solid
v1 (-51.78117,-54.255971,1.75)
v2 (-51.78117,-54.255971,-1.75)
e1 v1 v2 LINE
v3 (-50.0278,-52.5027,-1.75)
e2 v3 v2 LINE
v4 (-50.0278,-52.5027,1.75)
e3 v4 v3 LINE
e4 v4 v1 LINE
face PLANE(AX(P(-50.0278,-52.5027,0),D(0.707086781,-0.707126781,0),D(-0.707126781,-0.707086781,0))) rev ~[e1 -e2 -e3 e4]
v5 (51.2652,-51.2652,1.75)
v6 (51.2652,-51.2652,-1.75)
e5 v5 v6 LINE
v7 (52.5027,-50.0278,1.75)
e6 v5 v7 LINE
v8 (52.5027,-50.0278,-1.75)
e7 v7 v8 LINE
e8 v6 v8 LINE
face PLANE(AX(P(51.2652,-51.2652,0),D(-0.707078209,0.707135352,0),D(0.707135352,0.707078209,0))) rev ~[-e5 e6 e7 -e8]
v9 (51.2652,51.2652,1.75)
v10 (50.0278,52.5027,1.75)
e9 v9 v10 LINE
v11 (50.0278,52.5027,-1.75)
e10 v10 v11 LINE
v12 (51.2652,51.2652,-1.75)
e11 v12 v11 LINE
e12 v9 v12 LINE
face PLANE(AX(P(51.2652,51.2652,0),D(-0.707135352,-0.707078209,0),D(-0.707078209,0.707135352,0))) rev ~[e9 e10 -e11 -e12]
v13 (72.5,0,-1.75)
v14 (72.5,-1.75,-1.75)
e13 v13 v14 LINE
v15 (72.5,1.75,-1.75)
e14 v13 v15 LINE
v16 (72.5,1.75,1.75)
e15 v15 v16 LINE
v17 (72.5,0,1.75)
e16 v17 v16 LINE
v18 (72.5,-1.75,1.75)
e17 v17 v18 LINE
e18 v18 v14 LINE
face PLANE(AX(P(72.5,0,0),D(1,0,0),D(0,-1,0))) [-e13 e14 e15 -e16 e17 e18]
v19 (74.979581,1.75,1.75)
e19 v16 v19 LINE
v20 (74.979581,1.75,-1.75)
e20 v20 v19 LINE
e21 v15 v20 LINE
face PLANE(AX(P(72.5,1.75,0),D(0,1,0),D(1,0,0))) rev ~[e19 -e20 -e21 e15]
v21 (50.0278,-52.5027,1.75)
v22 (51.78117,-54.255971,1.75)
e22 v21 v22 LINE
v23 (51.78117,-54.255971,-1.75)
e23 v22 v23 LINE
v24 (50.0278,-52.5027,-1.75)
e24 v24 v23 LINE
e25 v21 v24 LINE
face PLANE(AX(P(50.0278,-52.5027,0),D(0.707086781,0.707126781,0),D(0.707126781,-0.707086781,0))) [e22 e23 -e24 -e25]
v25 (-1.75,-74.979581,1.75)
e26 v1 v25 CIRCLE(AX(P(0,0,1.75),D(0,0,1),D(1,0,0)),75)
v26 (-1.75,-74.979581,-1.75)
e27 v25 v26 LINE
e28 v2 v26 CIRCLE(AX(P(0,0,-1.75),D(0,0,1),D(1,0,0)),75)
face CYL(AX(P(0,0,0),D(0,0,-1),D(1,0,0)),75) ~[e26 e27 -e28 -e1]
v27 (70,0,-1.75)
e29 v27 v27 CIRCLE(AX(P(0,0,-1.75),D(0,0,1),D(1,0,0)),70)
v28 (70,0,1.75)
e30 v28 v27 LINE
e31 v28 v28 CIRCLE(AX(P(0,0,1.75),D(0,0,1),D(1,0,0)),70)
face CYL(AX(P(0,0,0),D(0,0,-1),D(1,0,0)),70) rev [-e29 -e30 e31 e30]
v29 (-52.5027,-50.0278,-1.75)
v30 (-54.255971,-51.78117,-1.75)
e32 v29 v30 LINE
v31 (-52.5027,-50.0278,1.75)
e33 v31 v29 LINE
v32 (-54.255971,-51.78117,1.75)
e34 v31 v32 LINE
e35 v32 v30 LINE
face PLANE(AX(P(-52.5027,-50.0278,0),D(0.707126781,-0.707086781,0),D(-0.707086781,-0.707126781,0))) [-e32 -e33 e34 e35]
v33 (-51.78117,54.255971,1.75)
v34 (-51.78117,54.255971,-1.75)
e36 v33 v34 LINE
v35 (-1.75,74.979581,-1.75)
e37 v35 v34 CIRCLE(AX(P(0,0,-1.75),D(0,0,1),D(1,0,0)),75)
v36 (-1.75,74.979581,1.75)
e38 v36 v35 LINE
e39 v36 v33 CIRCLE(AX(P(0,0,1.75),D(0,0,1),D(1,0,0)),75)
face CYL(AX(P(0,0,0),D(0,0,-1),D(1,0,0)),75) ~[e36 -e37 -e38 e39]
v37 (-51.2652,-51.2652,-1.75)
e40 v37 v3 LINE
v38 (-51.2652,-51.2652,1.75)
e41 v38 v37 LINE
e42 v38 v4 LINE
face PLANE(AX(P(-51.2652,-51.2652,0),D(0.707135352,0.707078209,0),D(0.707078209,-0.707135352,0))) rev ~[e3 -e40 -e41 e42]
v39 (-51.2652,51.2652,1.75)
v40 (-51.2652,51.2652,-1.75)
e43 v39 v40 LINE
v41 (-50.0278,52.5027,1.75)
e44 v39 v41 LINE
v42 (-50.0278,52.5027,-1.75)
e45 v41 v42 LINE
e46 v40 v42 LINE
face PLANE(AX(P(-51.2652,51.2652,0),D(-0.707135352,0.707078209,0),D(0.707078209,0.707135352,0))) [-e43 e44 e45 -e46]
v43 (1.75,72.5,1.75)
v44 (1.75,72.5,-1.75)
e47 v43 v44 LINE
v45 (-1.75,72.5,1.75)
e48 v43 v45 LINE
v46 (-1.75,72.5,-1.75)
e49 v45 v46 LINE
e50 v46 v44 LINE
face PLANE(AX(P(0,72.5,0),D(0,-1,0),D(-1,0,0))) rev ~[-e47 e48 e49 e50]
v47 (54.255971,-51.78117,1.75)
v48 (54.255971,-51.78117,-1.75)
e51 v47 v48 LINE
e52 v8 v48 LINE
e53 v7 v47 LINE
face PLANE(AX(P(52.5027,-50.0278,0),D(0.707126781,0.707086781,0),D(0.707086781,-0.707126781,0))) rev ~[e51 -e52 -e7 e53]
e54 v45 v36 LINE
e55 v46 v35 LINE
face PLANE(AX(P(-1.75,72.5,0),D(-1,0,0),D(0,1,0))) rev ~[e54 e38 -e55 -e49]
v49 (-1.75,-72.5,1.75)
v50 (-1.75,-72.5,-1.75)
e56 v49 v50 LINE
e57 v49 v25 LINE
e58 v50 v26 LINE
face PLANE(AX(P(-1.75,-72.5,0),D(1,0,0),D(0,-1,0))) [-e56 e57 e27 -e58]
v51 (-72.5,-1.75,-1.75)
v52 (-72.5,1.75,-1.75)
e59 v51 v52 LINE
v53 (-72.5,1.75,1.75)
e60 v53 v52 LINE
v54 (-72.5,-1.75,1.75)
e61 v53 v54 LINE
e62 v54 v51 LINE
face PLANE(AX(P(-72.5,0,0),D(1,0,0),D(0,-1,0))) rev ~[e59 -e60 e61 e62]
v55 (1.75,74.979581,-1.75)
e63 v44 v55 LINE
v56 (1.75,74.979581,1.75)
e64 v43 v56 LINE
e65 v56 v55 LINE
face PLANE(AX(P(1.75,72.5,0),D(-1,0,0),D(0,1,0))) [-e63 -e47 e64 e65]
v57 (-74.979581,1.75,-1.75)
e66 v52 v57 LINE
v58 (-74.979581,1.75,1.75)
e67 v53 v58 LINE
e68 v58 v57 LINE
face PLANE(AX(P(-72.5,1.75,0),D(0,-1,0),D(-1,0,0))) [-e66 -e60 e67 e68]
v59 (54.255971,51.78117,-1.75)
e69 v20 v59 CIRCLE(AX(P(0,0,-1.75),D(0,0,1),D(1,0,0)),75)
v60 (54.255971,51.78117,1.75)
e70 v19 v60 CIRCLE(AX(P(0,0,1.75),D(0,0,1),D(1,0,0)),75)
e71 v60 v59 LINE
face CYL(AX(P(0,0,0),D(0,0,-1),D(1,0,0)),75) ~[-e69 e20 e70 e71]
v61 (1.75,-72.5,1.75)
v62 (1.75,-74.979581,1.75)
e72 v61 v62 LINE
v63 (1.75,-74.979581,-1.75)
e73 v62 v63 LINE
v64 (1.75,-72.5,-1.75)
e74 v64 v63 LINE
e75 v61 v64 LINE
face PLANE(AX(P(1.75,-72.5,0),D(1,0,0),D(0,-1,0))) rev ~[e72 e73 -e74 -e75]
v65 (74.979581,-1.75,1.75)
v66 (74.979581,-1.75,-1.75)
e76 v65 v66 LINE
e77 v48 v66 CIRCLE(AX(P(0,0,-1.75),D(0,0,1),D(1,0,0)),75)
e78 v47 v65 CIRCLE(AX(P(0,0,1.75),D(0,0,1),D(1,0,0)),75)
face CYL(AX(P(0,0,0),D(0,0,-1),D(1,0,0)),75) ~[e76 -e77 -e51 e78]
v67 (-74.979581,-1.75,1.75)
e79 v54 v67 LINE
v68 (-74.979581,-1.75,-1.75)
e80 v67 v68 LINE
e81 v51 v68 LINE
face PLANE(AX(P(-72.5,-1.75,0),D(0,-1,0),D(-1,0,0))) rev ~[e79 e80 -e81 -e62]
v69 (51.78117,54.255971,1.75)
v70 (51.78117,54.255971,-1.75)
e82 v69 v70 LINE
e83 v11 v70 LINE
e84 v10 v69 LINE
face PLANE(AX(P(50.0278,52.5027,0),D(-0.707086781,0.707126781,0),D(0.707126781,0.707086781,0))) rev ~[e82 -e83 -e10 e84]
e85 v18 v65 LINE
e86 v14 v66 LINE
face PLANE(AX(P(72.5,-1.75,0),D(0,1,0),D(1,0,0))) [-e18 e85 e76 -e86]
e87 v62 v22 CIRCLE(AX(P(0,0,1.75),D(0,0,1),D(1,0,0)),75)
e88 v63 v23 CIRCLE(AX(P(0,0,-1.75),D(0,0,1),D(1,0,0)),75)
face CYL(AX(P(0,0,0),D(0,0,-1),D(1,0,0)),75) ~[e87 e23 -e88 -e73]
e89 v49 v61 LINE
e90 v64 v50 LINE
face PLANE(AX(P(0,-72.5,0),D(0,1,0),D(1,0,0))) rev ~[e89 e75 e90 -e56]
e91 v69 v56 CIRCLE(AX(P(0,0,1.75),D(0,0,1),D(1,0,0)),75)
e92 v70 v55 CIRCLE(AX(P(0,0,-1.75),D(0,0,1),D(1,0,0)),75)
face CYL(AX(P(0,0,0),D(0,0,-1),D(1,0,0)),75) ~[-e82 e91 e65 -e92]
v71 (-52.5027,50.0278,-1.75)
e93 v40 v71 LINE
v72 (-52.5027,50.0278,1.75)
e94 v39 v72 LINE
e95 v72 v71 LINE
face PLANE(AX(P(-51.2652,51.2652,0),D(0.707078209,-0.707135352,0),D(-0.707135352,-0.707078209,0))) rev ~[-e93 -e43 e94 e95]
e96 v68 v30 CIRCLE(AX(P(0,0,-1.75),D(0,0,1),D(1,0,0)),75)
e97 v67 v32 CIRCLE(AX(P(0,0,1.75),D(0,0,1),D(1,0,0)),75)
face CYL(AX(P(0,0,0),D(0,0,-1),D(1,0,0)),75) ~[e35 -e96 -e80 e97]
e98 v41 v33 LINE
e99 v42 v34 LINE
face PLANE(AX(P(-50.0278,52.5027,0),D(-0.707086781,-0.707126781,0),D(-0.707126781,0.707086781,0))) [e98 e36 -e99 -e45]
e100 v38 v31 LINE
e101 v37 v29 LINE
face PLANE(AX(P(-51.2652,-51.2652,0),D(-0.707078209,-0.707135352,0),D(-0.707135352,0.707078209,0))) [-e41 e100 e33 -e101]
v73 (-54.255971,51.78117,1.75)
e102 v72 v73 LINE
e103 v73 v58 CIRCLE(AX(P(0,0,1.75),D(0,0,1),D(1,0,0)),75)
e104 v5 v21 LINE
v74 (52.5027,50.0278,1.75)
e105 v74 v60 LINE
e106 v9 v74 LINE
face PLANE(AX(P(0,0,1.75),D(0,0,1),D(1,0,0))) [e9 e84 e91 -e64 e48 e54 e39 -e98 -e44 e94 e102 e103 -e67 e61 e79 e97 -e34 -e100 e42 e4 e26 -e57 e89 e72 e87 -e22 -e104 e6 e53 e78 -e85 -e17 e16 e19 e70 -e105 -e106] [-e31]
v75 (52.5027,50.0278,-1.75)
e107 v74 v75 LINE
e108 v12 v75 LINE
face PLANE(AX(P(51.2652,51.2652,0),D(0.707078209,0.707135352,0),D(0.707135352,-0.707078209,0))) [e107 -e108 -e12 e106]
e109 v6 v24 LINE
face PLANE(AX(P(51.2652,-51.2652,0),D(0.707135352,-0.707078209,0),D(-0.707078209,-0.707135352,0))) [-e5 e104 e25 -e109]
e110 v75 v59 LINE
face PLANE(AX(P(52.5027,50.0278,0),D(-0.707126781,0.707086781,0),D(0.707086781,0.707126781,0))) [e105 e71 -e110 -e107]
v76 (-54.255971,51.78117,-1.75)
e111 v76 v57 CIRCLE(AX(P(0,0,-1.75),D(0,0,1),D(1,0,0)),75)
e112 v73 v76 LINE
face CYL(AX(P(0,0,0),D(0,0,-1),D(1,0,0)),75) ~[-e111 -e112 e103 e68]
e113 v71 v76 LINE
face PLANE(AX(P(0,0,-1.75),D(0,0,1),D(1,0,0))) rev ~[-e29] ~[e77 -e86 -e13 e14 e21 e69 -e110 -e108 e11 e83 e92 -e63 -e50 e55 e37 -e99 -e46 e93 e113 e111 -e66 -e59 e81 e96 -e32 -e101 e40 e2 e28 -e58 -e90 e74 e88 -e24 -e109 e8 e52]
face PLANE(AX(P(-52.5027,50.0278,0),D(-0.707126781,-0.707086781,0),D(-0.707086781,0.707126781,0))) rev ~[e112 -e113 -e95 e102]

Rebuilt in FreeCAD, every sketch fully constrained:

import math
import FreeCAD as App
import Part
import Sketcher
from FreeCAD import Vector
Q = App.Units.Quantity

doc = App.newDocument("Part")
params = doc.addObject("Spreadsheet::Sheet", "Params")
for row, (alias, value) in enumerate([
    ("sketch1_diameter", "140 mm"),
    ("sketch1_radius", "75 mm"),
    ("sketch1_height", "1.75 mm"),
    ("sketch1_length", "1.75 mm"),
    ("pad1_length", "3.5 mm"),
], start=1):
    params.set(f"A{row}", alias)
    params.set(f"B{row}", "=" + value)
    params.setAlias(f"B{row}", alias)

body = doc.addObject("PartDesign::Body", "Body")

# Sketch on XY plane
sketch1 = body.newObject("Sketcher::SketchObject", "Sketch")
sketch1.AttachmentSupport = (doc.getObject("XY_Plane"), [""])
sketch1.MapMode = "FlatFace"
sketch1.addGeometry([
    Part.LineSegment(Vector(72.5, -1.8, 0), Vector(72.5, 0, 0)),  # 0
    Part.LineSegment(Vector(72.5, 0, 0), Vector(72.5, 1.8, 0)),  # 1
    Part.LineSegment(Vector(72.5, 1.8, 0), Vector(75, 1.8, 0)),  # 2
    Part.ArcOfCircle(Part.Circle(Vector(0, 0, 0), Vector(0, 0, 1), 75), math.radians(1), math.radians(44)),  # 3
    Part.LineSegment(Vector(54.3, 51.8, 0), Vector(52.5, 50, 0)),  # 4
    Part.LineSegment(Vector(52.5, 50, 0), Vector(51.3, 51.3, 0)),  # 5
    Part.LineSegment(Vector(51.3, 51.3, 0), Vector(50, 52.5, 0)),  # 6
    Part.LineSegment(Vector(50, 52.5, 0), Vector(51.8, 54.3, 0)),  # 7
    Part.ArcOfCircle(Part.Circle(Vector(0, 0, 0), Vector(0, 0, 1), 75), math.radians(46), math.radians(89)),  # 8
    Part.LineSegment(Vector(1.8, 75, 0), Vector(1.8, 72.5, 0)),  # 9
    Part.LineSegment(Vector(1.8, 72.5, 0), Vector(-1.8, 72.5, 0)),  # 10
    Part.LineSegment(Vector(-1.8, 72.5, 0), Vector(-1.8, 75, 0)),  # 11
    Part.ArcOfCircle(Part.Circle(Vector(0, 0, 0), Vector(0, 0, 1), 75), math.radians(91), math.radians(134)),  # 12
    Part.LineSegment(Vector(-51.8, 54.3, 0), Vector(-50, 52.5, 0)),  # 13
    Part.LineSegment(Vector(-50, 52.5, 0), Vector(-51.3, 51.3, 0)),  # 14
    Part.LineSegment(Vector(-51.3, 51.3, 0), Vector(-52.5, 50, 0)),  # 15
    Part.LineSegment(Vector(-52.5, 50, 0), Vector(-54.3, 51.8, 0)),  # 16
    Part.ArcOfCircle(Part.Circle(Vector(0, 0, 0), Vector(0, 0, 1), 75), math.radians(136), math.radians(179)),  # 17
    Part.LineSegment(Vector(-75, 1.8, 0), Vector(-72.5, 1.8, 0)),  # 18
    Part.LineSegment(Vector(-72.5, 1.8, 0), Vector(-72.5, -1.8, 0)),  # 19
    Part.LineSegment(Vector(-72.5, -1.8, 0), Vector(-75, -1.8, 0)),  # 20
    Part.ArcOfCircle(Part.Circle(Vector(0, 0, 0), Vector(0, 0, 1), 75), math.radians(-179), math.radians(-136)),  # 21
    Part.LineSegment(Vector(-54.3, -51.8, 0), Vector(-52.5, -50, 0)),  # 22
    Part.LineSegment(Vector(-52.5, -50, 0), Vector(-51.3, -51.3, 0)),  # 23
    Part.LineSegment(Vector(-51.3, -51.3, 0), Vector(-50, -52.5, 0)),  # 24
    Part.LineSegment(Vector(-50, -52.5, 0), Vector(-51.8, -54.3, 0)),  # 25
    Part.ArcOfCircle(Part.Circle(Vector(0, 0, 0), Vector(0, 0, 1), 75), math.radians(-134), math.radians(-91)),  # 26
    Part.LineSegment(Vector(-1.8, -75, 0), Vector(-1.8, -72.5, 0)),  # 27
    Part.LineSegment(Vector(-1.8, -72.5, 0), Vector(1.8, -72.5, 0)),  # 28
    Part.LineSegment(Vector(1.8, -72.5, 0), Vector(1.8, -75, 0)),  # 29
    Part.ArcOfCircle(Part.Circle(Vector(0, 0, 0), Vector(0, 0, 1), 75), math.radians(-89), math.radians(-46)),  # 30
    Part.LineSegment(Vector(51.8, -54.3, 0), Vector(50, -52.5, 0)),  # 31
    Part.LineSegment(Vector(50, -52.5, 0), Vector(51.3, -51.3, 0)),  # 32
    Part.LineSegment(Vector(51.3, -51.3, 0), Vector(52.5, -50, 0)),  # 33
    Part.LineSegment(Vector(52.5, -50, 0), Vector(54.3, -51.8, 0)),  # 34
    Part.ArcOfCircle(Part.Circle(Vector(0, 0, 0), Vector(0, 0, 1), 75), math.radians(-44), math.radians(-1)),  # 35
    Part.LineSegment(Vector(75, -1.8, 0), Vector(72.5, -1.8, 0)),  # 36
    Part.Circle(Vector(0, 0, 0), Vector(0, 0, 1), 70),  # 37
], False)
sketch1.addConstraint([
    Sketcher.Constraint("Coincident", 0, 2, 1, 1),
    Sketcher.Constraint("Coincident", 1, 2, 2, 1),
    Sketcher.Constraint("Coincident", 2, 2, 3, 1),
    Sketcher.Constraint("Coincident", 3, 2, 4, 1),
    Sketcher.Constraint("Coincident", 4, 2, 5, 1),
    Sketcher.Constraint("Coincident", 5, 2, 6, 1),
    Sketcher.Constraint("Coincident", 6, 2, 7, 1),
    Sketcher.Constraint("Coincident", 7, 2, 8, 1),
    Sketcher.Constraint("Coincident", 8, 2, 9, 1),
    Sketcher.Constraint("Coincident", 9, 2, 10, 1),
    Sketcher.Constraint("Coincident", 10, 2, 11, 1),
    Sketcher.Constraint("Coincident", 11, 2, 12, 1),
    Sketcher.Constraint("Coincident", 12, 2, 13, 1),
    Sketcher.Constraint("Coincident", 13, 2, 14, 1),
    Sketcher.Constraint("Coincident", 14, 2, 15, 1),
    Sketcher.Constraint("Coincident", 15, 2, 16, 1),
    Sketcher.Constraint("Coincident", 16, 2, 17, 1),
    Sketcher.Constraint("Coincident", 17, 2, 18, 1),
    Sketcher.Constraint("Coincident", 18, 2, 19, 1),
    Sketcher.Constraint("Coincident", 19, 2, 20, 1),
    Sketcher.Constraint("Coincident", 20, 2, 21, 1),
    Sketcher.Constraint("Coincident", 21, 2, 22, 1),
    Sketcher.Constraint("Coincident", 22, 2, 23, 1),
    Sketcher.Constraint("Coincident", 23, 2, 24, 1),
    Sketcher.Constraint("Coincident", 24, 2, 25, 1),
    Sketcher.Constraint("Coincident", 25, 2, 26, 1),
    Sketcher.Constraint("Coincident", 26, 2, 27, 1),
    Sketcher.Constraint("Coincident", 27, 2, 28, 1),
    Sketcher.Constraint("Coincident", 28, 2, 29, 1),
    Sketcher.Constraint("Coincident", 29, 2, 30, 1),
    Sketcher.Constraint("Coincident", 30, 2, 31, 1),
    Sketcher.Constraint("Coincident", 31, 2, 32, 1),
    Sketcher.Constraint("Coincident", 32, 2, 33, 1),
    Sketcher.Constraint("Coincident", 33, 2, 34, 1),
    Sketcher.Constraint("Coincident", 34, 2, 35, 1),
    Sketcher.Constraint("Coincident", 35, 2, 36, 1),
    Sketcher.Constraint("Coincident", 36, 2, 0, 1),
    Sketcher.Constraint("Vertical", 0),
    Sketcher.Constraint("Vertical", 1),
    Sketcher.Constraint("Horizontal", 2),
    Sketcher.Constraint("Vertical", 9),
    Sketcher.Constraint("Horizontal", 10),
    Sketcher.Constraint("Vertical", 11),
    Sketcher.Constraint("Horizontal", 18),
    Sketcher.Constraint("Vertical", 19),
    Sketcher.Constraint("Horizontal", 20),
    Sketcher.Constraint("Vertical", 27),
    Sketcher.Constraint("Horizontal", 28),
    Sketcher.Constraint("Vertical", 29),
    Sketcher.Constraint("Horizontal", 36),
    Sketcher.Constraint("Coincident", 3, 3, -1, 1),
    Sketcher.Constraint("Coincident", 8, 3, -1, 1),
    Sketcher.Constraint("Coincident", 12, 3, -1, 1),
    Sketcher.Constraint("Coincident", 17, 3, -1, 1),
    Sketcher.Constraint("Coincident", 21, 3, -1, 1),
    Sketcher.Constraint("Coincident", 26, 3, -1, 1),
    Sketcher.Constraint("Coincident", 30, 3, -1, 1),
    Sketcher.Constraint("Coincident", 35, 3, -1, 1),
    Sketcher.Constraint("Coincident", 37, 3, -1, 1),
    Sketcher.Constraint("Equal", 3, 8),
    Sketcher.Constraint("Equal", 8, 12),
    Sketcher.Constraint("Equal", 12, 17),
    Sketcher.Constraint("Equal", 17, 21),
    Sketcher.Constraint("Equal", 21, 26),
    Sketcher.Constraint("Equal", 26, 30),
    Sketcher.Constraint("Equal", 30, 35),
    Sketcher.Constraint("Symmetric", 1, 2, 19, 2, -1, 1),
    Sketcher.Constraint("Symmetric", 4, 2, 22, 2, -1, 1),
    Sketcher.Constraint("Symmetric", 5, 2, 23, 2, -1, 1),
    Sketcher.Constraint("Symmetric", 6, 2, 24, 2, -1, 1),
    Sketcher.Constraint("Symmetric", 9, 2, 27, 2, -1, 1),
    Sketcher.Constraint("Symmetric", 13, 2, 31, 2, -1, 1),
    Sketcher.Constraint("Symmetric", 14, 2, 32, 2, -1, 1),
    Sketcher.Constraint("Symmetric", 15, 2, 33, 2, -1, 1),
    Sketcher.Constraint("Symmetric", 6, 2, 13, 2, -2),
    Sketcher.Constraint("Symmetric", 5, 2, 14, 2, -2),
    Sketcher.Constraint("Symmetric", 4, 2, 15, 2, -2),
    Sketcher.Constraint("PointOnObject", 0, 2, -1),
    Sketcher.Constraint("Perpendicular", 4, 5),
    Sketcher.Constraint("Parallel", 5, 6),
    Sketcher.Constraint("Perpendicular", 6, 7),
    Sketcher.Constraint("Perpendicular", 7, 13),
    Sketcher.Constraint("Perpendicular", 13, 14),
    Sketcher.Constraint("Perpendicular", 15, 16),
    Sketcher.Constraint("Perpendicular", 16, 22),
    Sketcher.Constraint("Perpendicular", 24, 25),
    Sketcher.Constraint("Perpendicular", 25, 31),
    Sketcher.Constraint("Perpendicular", 33, 34),
    Sketcher.Constraint("Horizontal", 8, 2, 11, 2),
    Sketcher.Constraint("Horizontal", 2, 2, 17, 2),
    Sketcher.Constraint("Horizontal", 26, 2, 29, 2),
    Sketcher.Constraint("Horizontal", 20, 2, 35, 2),
    Sketcher.Constraint("Equal", 36, 9),
    Sketcher.Constraint("Equal", 28, 19),
    Sketcher.Constraint("Equal", 5, 6),
    Sketcher.Constraint("Equal", 4, 7),
    Sketcher.Constraint("Diameter", 37, Q("140 mm")),
    Sketcher.Constraint("Radius", 3, Q("75 mm")),
    Sketcher.Constraint("DistanceY", 0, 1, 0, 2, Q("1.75 mm")),
    Sketcher.Constraint("Distance", 5, Q("1.75 mm")),
    Sketcher.Constraint("DistanceX", -1, 1, 0, 2, Q("72.5 mm")),
    Sketcher.Constraint("DistanceX", 4, 2, 2, 2, Q("22.477 mm")),
])
sketch1.setExpression("Constraints[96]", "Params.sketch1_diameter")
sketch1.setExpression("Constraints[97]", "Params.sketch1_radius")
sketch1.setExpression("Constraints[98]", "Params.sketch1_height")
sketch1.setExpression("Constraints[99]", "Params.sketch1_length")
pad1 = body.newObject("PartDesign::Pad", "Pad")
pad1.Profile = sketch1
pad1.setExpression("Length", "Params.pad1_length")
pad1.Midplane = True

doc.recompute()
